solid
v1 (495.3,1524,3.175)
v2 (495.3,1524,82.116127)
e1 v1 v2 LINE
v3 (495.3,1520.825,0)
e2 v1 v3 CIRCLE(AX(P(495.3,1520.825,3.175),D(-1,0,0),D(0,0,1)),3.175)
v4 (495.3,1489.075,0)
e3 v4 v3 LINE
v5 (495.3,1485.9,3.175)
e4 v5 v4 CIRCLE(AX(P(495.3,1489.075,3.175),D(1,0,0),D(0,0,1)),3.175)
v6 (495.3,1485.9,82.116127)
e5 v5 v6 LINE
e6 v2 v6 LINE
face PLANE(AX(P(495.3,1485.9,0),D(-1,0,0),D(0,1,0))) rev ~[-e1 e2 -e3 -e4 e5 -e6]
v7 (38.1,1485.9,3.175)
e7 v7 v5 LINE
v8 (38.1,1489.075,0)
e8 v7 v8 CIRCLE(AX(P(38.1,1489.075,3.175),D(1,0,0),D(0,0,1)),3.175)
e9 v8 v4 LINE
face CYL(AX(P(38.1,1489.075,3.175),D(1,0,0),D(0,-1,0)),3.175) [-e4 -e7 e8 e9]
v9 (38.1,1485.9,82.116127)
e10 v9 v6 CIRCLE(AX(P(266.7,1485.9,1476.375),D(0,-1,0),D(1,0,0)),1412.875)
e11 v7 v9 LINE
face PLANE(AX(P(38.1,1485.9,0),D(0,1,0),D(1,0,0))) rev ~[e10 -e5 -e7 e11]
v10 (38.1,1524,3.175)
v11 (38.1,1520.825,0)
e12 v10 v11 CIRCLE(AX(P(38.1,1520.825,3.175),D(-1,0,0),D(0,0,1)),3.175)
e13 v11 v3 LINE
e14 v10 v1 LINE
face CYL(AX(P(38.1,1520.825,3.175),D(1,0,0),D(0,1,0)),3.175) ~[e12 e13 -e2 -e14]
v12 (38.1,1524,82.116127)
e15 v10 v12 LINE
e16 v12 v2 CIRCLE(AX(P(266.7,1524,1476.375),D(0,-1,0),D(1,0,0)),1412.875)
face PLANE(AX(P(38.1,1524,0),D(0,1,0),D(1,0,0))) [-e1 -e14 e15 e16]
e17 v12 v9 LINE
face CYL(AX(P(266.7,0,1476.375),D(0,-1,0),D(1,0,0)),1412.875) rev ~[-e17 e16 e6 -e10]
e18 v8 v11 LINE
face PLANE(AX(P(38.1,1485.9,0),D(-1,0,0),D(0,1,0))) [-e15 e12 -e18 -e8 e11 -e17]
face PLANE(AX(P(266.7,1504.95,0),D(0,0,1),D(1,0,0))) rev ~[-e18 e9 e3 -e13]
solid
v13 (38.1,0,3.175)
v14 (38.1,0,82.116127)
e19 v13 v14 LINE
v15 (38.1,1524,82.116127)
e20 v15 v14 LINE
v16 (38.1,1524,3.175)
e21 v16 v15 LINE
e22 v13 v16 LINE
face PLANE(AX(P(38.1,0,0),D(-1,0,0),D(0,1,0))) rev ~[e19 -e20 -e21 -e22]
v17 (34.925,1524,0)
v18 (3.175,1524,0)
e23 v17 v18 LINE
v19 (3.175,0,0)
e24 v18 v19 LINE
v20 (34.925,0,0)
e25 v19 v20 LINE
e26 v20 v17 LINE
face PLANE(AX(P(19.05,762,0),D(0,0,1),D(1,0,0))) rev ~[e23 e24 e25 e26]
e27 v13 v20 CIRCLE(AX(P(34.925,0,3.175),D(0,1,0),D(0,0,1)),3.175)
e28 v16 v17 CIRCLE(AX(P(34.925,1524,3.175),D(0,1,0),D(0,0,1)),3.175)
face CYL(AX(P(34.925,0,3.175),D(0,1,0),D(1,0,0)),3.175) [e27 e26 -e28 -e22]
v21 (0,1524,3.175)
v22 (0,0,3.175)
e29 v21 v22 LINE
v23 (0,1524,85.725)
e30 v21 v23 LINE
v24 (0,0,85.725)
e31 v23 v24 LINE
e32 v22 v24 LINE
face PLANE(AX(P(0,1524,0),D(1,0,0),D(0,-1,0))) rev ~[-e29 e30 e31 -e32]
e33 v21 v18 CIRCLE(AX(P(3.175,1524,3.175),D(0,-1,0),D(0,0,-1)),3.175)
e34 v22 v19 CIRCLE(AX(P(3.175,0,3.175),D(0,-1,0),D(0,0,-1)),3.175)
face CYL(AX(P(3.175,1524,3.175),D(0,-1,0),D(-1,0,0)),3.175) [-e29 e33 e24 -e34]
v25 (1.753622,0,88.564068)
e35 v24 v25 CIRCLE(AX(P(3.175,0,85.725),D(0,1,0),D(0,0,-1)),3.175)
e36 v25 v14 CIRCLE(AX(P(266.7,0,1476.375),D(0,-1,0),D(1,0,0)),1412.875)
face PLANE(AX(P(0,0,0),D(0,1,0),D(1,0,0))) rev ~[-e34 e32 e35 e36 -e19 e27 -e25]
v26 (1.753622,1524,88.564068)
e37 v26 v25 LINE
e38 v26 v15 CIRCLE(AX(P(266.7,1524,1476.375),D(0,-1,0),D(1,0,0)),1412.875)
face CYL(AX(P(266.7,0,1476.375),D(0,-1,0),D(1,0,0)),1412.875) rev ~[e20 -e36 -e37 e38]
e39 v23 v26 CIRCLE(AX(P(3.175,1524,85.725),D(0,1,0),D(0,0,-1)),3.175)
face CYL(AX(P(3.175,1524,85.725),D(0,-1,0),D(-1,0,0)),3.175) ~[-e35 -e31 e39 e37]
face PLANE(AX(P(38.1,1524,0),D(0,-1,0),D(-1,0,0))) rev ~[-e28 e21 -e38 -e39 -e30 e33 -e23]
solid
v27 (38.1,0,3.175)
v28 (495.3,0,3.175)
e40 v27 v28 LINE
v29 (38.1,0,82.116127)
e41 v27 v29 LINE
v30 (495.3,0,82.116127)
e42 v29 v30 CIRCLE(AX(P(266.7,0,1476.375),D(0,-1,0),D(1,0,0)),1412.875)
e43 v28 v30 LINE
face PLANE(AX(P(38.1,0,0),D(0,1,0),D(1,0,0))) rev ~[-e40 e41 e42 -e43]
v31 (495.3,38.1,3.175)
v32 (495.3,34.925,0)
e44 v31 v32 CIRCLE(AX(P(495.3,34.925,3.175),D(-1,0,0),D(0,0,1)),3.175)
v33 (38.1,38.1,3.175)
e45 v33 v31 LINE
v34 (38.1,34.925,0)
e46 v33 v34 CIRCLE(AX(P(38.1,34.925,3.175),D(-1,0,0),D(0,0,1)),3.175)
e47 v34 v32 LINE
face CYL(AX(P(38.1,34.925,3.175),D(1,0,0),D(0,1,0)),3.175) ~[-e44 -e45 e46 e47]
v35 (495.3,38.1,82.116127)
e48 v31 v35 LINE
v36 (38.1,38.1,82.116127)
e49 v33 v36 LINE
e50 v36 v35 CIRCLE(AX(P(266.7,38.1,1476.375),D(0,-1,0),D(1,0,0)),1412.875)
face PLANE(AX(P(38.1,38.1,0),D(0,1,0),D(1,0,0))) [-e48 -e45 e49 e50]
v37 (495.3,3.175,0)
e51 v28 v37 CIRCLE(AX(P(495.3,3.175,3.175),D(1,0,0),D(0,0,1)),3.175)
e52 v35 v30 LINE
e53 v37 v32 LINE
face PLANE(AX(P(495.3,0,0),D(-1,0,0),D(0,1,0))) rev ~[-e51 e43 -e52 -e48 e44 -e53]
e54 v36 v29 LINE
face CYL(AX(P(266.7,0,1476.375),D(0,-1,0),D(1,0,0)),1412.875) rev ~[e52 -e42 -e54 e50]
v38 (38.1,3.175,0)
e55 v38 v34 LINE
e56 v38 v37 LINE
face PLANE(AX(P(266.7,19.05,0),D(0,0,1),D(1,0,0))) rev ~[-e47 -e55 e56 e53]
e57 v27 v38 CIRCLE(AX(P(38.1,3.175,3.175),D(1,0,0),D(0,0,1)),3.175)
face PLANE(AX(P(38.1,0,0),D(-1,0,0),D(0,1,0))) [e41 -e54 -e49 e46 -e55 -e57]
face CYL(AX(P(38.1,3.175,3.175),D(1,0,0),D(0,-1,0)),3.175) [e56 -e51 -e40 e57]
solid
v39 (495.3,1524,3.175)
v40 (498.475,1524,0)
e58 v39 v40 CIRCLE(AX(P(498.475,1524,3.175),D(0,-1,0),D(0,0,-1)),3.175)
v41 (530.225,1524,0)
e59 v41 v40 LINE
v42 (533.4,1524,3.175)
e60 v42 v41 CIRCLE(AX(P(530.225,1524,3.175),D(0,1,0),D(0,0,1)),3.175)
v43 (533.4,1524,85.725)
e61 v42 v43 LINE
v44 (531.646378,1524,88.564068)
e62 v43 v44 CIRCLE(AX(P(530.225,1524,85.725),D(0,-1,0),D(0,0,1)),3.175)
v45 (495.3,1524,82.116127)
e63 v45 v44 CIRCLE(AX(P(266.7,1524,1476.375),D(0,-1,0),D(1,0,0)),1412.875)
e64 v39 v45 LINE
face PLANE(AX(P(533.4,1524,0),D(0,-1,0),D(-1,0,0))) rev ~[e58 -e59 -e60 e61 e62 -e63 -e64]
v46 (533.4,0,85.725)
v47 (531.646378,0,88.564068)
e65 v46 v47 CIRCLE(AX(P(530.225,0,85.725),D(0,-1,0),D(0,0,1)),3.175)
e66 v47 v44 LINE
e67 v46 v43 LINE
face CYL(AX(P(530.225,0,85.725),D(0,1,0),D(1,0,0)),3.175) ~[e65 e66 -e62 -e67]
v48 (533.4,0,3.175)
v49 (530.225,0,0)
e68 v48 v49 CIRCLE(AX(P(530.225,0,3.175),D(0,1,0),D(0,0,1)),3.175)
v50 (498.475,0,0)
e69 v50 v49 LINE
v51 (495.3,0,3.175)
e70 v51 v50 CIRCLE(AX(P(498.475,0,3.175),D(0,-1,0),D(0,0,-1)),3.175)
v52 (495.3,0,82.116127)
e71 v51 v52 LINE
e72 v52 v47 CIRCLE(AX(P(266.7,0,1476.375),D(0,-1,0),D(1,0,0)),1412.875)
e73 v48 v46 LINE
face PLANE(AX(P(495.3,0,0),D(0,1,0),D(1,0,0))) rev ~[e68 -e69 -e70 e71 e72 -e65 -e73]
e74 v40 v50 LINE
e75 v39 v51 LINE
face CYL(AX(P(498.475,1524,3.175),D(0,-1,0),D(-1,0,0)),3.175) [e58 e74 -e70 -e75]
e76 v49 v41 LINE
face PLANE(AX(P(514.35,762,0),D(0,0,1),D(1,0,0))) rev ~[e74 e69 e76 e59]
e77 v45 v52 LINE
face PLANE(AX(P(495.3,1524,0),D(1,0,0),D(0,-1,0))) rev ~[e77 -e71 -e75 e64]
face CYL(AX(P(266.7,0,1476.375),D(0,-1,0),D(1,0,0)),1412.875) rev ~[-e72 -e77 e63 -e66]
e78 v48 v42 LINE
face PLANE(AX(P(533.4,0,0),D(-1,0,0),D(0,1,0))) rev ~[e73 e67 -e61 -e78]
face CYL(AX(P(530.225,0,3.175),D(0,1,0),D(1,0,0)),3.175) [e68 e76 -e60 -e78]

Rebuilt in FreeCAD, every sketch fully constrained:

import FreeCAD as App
import Part
import Sketcher
from FreeCAD import Vector
Q = App.Units.Quantity


def edges_at(feature, points):
    """Names of the edges that pass closest to the given points."""
    edges = feature.Shape.Edges
    near = lambda p: min(range(len(edges)), key=lambda i: edges[i].distToShape(Part.Vertex(*p))[0])
    return sorted({f"Edge{near(p) + 1}" for p in points})


def add_polygon(sketch, points):
    """Adds a closed chain of lines whose ends are joined by coincident constraints."""
    first, n = sketch.GeometryCount, len(points)
    for a, b in zip(points, points[1:] + points[:1]):
        sketch.addGeometry(Part.LineSegment(App.Vector(*a, 0), App.Vector(*b, 0)), False)
    for i in range(n):
        sketch.addConstraint(Sketcher.Constraint("Coincident", first + i, 2, first + (i + 1) % n, 1))

doc = App.newDocument("Part")
params = doc.addObject("Spreadsheet::Sheet", "Params")
for row, (alias, value) in enumerate([
    ("sketch1_height", "60 in"),
    ("sketch1_width", "1.5 in"),
    ("pad1_length", "3.5 in"),
    ("fillet_radius", "0.125 in"),
    ("sketch2_height", "60 in"),
    ("sketch2_width", "1.5 in"),
    ("pad2_length", "3.5 in"),
    ("fillet2_radius", "0.125 in"),
    ("sketch3_width", "18 in"),
    ("sketch3_height", "1.5 in"),
    ("pad3_length", "3.5 in"),
    ("fillet3_radius", "0.125 in"),
    ("sketch4_width", "18 in"),
    ("sketch4_height", "1.5 in"),
    ("pad4_length", "3.5 in"),
    ("fillet4_radius", "0.125 in"),
    ("sketch5_diameter", "111.25 in"),
    ("pad5_length", "1524.001 mm"),
], start=1):
    params.set(f"A{row}", alias)
    params.set(f"B{row}", "=" + value)
    params.setAlias(f"B{row}", alias)

body = doc.addObject("PartDesign::Body", "Body")

sketch1 = body.newObject("Sketcher::SketchObject", "Sketch")
sketch1.AttachmentSupport = (doc.getObject("XY_Plane"), [""])
sketch1.MapMode = "FlatFace"
add_polygon(sketch1, [(0, 1524), (0, 0), (38, 0), (38, 1524)])
sketch1.addConstraint([
    Sketcher.Constraint("Vertical", 0),
    Sketcher.Constraint("Horizontal", 1),
    Sketcher.Constraint("Vertical", 2),
    Sketcher.Constraint("Horizontal", 3),
    Sketcher.Constraint("Coincident", 0, 2, -1, 1),
    Sketcher.Constraint("DistanceY", 0, 2, 0, 1, Q("60 in")),
    Sketcher.Constraint("DistanceX", 1, 1, 1, 2, Q("1.5 in")),
])
sketch1.setExpression("Constraints[9]", "Params.sketch1_height")
sketch1.setExpression("Constraints[10]", "Params.sketch1_width")
pad1 = body.newObject("PartDesign::Pad", "Pad")
pad1.Profile = sketch1
pad1.setExpression("Length", "Params.pad1_length")
doc.recompute()

fillet = body.newObject("PartDesign::Fillet", "Fillet")
fillet.Base = (pad1, edges_at(pad1, [
    (38.1, 762, 88.9),
    (38.1, 762, 0),
    (0, 762, 88.9),
    (0, 762, 0),
]))
fillet.setExpression("Radius", "Params.fillet_radius")
body2 = doc.addObject("PartDesign::Body", "Body001")

sketch2 = body2.newObject("Sketcher::SketchObject", "Sketch001")
sketch2.AttachmentSupport = (doc.getObject("XY_Plane001"), [""])
sketch2.MapMode = "FlatFace"
add_polygon(sketch2, [(495, 0), (533, 0), (533, 1524), (495, 1524)])
sketch2.addConstraint([
    Sketcher.Constraint("Horizontal", 0),
    Sketcher.Constraint("Vertical", 1),
    Sketcher.Constraint("Horizontal", 2),
    Sketcher.Constraint("Vertical", 3),
    Sketcher.Constraint("PointOnObject", 0, 2, -1),
    Sketcher.Constraint("DistanceY", 1, 1, 1, 2, Q("60 in")),
    Sketcher.Constraint("DistanceX", 0, 1, 0, 2, Q("1.5 in")),
    Sketcher.Constraint("DistanceX", -1, 1, 0, 2, Q("21 in")),
])
sketch2.setExpression("Constraints[9]", "Params.sketch2_height")
sketch2.setExpression("Constraints[10]", "Params.sketch2_width")
pad2 = body2.newObject("PartDesign::Pad", "Pad001")
pad2.Profile = sketch2
pad2.setExpression("Length", "Params.pad2_length")
doc.recompute()

fillet2 = body2.newObject("PartDesign::Fillet", "Fillet001")
fillet2.Base = (pad2, edges_at(pad2, [
    (495.3, 762, 0),
    (533.4, 762, 0),
    (533.4, 762, 88.9),
    (495.3, 762, 88.9),
]))
fillet2.setExpression("Radius", "Params.fillet2_radius")
body3 = doc.addObject("PartDesign::Body", "Body002")

sketch3 = body3.newObject("Sketcher::SketchObject", "Sketch002")
sketch3.AttachmentSupport = (doc.getObject("XY_Plane002"), [""])
sketch3.MapMode = "FlatFace"
add_polygon(sketch3, [(38, 38), (38, 0), (495, 0), (495, 38)])
sketch3.addConstraint([
    Sketcher.Constraint("Vertical", 0),
    Sketcher.Constraint("Horizontal", 1),
    Sketcher.Constraint("Vertical", 2),
    Sketcher.Constraint("Horizontal", 3),
    Sketcher.Constraint("PointOnObject", 0, 2, -1),
    Sketcher.Constraint("DistanceX", 1, 1, 1, 2, Q("18 in")),
    Sketcher.Constraint("DistanceY", 0, 2, 0, 1, Q("1.5 in")),
    Sketcher.Constraint("DistanceX", -1, 1, 0, 2, Q("1.5 in")),
])
sketch3.setExpression("Constraints[9]", "Params.sketch3_width")
sketch3.setExpression("Constraints[10]", "Params.sketch3_height")
pad3 = body3.newObject("PartDesign::Pad", "Pad002")
pad3.Profile = sketch3
pad3.setExpression("Length", "Params.pad3_length")
doc.recompute()

fillet3 = body3.newObject("PartDesign::Fillet", "Fillet002")
fillet3.Base = (pad3, edges_at(pad3, [
    (266.7, 0, 88.9),
    (266.7, 0, 0),
    (266.7, 38.1, 88.9),
    (266.7, 38.1, 0),
]))
fillet3.setExpression("Radius", "Params.fillet3_radius")
body4 = doc.addObject("PartDesign::Body", "Body003")

sketch4 = body4.newObject("Sketcher::SketchObject", "Sketch003")
sketch4.AttachmentSupport = (doc.getObject("XY_Plane003"), [""])
sketch4.MapMode = "FlatFace"
add_polygon(sketch4, [(38, 1524), (38, 1486), (495, 1486), (495, 1524)])
sketch4.addConstraint([
    Sketcher.Constraint("Vertical", 0),
    Sketcher.Constraint("Horizontal", 1),
    Sketcher.Constraint("Vertical", 2),
    Sketcher.Constraint("Horizontal", 3),
    Sketcher.Constraint("DistanceX", 1, 1, 1, 2, Q("18 in")),
    Sketcher.Constraint("DistanceY", 0, 2, 0, 1, Q("1.5 in")),
    Sketcher.Constraint("DistanceY", -1, 1, 2, 2, Q("60 in")),
    Sketcher.Constraint("DistanceX", -1, 1, 0, 2, Q("1.5 in")),
])
sketch4.setExpression("Constraints[8]", "Params.sketch4_width")
sketch4.setExpression("Constraints[9]", "Params.sketch4_height")
pad4 = body4.newObject("PartDesign::Pad", "Pad003")
pad4.Profile = sketch4
pad4.setExpression("Length", "Params.pad4_length")
doc.recompute()

fillet4 = body4.newObject("PartDesign::Fillet", "Fillet003")
fillet4.Base = (pad4, edges_at(pad4, [
    (266.7, 1485.9, 0),
    (266.7, 1485.9, 88.9),
    (266.7, 1524, 88.9),
    (266.7, 1524, 0),
]))
fillet4.setExpression("Radius", "Params.fillet4_radius")
body5 = doc.addObject("PartDesign::Body", "Body004")

sketch5 = body5.newObject("Sketcher::SketchObject", "Sketch004")
sketch5.AttachmentSupport = (doc.getObject("XZ_Plane004"), [""])
sketch5.MapMode = "FlatFace"
sketch5.addGeometry(Part.Circle(Vector(267, 1476, 0), Vector(0, 0, 1), 1413), False)
sketch5.addConstraint([
    Sketcher.Constraint("Diameter", 0, Q("111.25 in")),
    Sketcher.Constraint("DistanceX", -1, 1, 0, 3, Q("10.5 in")),
    Sketcher.Constraint("DistanceY", -1, 1, 0, 3, Q("58.125 in")),
])
sketch5.setExpression("Constraints[0]", "Params.sketch5_diameter")
pad5 = body5.newObject("PartDesign::Pad", "Pad004")
pad5.Profile = sketch5
pad5.setExpression("Length", "Params.pad5_length")
pad5.Reversed = True
doc.recompute()

body6 = doc.addObject("PartDesign::Body", "Body005")
body6.BaseFeature = body5
boolean = body.newObject("PartDesign::Boolean", "Boolean")
boolean.Type = "Cut"
boolean.addObjects([body6])
doc.recompute()

body7 = doc.addObject("PartDesign::Body", "Body006")
body7.BaseFeature = body5
boolean2 = body2.newObject("PartDesign::Boolean", "Boolean001")
boolean2.Type = "Cut"
boolean2.addObjects([body7])
doc.recompute()

body8 = doc.addObject("PartDesign::Body", "Body007")
body8.BaseFeature = body5
boolean3 = body3.newObject("PartDesign::Boolean", "Boolean002")
boolean3.Type = "Cut"
boolean3.addObjects([body8])
doc.recompute()

boolean4 = body4.newObject("PartDesign::Boolean", "Boolean003")
boolean4.Type = "Cut"
boolean4.addObjects([body5])

doc.recompute()
